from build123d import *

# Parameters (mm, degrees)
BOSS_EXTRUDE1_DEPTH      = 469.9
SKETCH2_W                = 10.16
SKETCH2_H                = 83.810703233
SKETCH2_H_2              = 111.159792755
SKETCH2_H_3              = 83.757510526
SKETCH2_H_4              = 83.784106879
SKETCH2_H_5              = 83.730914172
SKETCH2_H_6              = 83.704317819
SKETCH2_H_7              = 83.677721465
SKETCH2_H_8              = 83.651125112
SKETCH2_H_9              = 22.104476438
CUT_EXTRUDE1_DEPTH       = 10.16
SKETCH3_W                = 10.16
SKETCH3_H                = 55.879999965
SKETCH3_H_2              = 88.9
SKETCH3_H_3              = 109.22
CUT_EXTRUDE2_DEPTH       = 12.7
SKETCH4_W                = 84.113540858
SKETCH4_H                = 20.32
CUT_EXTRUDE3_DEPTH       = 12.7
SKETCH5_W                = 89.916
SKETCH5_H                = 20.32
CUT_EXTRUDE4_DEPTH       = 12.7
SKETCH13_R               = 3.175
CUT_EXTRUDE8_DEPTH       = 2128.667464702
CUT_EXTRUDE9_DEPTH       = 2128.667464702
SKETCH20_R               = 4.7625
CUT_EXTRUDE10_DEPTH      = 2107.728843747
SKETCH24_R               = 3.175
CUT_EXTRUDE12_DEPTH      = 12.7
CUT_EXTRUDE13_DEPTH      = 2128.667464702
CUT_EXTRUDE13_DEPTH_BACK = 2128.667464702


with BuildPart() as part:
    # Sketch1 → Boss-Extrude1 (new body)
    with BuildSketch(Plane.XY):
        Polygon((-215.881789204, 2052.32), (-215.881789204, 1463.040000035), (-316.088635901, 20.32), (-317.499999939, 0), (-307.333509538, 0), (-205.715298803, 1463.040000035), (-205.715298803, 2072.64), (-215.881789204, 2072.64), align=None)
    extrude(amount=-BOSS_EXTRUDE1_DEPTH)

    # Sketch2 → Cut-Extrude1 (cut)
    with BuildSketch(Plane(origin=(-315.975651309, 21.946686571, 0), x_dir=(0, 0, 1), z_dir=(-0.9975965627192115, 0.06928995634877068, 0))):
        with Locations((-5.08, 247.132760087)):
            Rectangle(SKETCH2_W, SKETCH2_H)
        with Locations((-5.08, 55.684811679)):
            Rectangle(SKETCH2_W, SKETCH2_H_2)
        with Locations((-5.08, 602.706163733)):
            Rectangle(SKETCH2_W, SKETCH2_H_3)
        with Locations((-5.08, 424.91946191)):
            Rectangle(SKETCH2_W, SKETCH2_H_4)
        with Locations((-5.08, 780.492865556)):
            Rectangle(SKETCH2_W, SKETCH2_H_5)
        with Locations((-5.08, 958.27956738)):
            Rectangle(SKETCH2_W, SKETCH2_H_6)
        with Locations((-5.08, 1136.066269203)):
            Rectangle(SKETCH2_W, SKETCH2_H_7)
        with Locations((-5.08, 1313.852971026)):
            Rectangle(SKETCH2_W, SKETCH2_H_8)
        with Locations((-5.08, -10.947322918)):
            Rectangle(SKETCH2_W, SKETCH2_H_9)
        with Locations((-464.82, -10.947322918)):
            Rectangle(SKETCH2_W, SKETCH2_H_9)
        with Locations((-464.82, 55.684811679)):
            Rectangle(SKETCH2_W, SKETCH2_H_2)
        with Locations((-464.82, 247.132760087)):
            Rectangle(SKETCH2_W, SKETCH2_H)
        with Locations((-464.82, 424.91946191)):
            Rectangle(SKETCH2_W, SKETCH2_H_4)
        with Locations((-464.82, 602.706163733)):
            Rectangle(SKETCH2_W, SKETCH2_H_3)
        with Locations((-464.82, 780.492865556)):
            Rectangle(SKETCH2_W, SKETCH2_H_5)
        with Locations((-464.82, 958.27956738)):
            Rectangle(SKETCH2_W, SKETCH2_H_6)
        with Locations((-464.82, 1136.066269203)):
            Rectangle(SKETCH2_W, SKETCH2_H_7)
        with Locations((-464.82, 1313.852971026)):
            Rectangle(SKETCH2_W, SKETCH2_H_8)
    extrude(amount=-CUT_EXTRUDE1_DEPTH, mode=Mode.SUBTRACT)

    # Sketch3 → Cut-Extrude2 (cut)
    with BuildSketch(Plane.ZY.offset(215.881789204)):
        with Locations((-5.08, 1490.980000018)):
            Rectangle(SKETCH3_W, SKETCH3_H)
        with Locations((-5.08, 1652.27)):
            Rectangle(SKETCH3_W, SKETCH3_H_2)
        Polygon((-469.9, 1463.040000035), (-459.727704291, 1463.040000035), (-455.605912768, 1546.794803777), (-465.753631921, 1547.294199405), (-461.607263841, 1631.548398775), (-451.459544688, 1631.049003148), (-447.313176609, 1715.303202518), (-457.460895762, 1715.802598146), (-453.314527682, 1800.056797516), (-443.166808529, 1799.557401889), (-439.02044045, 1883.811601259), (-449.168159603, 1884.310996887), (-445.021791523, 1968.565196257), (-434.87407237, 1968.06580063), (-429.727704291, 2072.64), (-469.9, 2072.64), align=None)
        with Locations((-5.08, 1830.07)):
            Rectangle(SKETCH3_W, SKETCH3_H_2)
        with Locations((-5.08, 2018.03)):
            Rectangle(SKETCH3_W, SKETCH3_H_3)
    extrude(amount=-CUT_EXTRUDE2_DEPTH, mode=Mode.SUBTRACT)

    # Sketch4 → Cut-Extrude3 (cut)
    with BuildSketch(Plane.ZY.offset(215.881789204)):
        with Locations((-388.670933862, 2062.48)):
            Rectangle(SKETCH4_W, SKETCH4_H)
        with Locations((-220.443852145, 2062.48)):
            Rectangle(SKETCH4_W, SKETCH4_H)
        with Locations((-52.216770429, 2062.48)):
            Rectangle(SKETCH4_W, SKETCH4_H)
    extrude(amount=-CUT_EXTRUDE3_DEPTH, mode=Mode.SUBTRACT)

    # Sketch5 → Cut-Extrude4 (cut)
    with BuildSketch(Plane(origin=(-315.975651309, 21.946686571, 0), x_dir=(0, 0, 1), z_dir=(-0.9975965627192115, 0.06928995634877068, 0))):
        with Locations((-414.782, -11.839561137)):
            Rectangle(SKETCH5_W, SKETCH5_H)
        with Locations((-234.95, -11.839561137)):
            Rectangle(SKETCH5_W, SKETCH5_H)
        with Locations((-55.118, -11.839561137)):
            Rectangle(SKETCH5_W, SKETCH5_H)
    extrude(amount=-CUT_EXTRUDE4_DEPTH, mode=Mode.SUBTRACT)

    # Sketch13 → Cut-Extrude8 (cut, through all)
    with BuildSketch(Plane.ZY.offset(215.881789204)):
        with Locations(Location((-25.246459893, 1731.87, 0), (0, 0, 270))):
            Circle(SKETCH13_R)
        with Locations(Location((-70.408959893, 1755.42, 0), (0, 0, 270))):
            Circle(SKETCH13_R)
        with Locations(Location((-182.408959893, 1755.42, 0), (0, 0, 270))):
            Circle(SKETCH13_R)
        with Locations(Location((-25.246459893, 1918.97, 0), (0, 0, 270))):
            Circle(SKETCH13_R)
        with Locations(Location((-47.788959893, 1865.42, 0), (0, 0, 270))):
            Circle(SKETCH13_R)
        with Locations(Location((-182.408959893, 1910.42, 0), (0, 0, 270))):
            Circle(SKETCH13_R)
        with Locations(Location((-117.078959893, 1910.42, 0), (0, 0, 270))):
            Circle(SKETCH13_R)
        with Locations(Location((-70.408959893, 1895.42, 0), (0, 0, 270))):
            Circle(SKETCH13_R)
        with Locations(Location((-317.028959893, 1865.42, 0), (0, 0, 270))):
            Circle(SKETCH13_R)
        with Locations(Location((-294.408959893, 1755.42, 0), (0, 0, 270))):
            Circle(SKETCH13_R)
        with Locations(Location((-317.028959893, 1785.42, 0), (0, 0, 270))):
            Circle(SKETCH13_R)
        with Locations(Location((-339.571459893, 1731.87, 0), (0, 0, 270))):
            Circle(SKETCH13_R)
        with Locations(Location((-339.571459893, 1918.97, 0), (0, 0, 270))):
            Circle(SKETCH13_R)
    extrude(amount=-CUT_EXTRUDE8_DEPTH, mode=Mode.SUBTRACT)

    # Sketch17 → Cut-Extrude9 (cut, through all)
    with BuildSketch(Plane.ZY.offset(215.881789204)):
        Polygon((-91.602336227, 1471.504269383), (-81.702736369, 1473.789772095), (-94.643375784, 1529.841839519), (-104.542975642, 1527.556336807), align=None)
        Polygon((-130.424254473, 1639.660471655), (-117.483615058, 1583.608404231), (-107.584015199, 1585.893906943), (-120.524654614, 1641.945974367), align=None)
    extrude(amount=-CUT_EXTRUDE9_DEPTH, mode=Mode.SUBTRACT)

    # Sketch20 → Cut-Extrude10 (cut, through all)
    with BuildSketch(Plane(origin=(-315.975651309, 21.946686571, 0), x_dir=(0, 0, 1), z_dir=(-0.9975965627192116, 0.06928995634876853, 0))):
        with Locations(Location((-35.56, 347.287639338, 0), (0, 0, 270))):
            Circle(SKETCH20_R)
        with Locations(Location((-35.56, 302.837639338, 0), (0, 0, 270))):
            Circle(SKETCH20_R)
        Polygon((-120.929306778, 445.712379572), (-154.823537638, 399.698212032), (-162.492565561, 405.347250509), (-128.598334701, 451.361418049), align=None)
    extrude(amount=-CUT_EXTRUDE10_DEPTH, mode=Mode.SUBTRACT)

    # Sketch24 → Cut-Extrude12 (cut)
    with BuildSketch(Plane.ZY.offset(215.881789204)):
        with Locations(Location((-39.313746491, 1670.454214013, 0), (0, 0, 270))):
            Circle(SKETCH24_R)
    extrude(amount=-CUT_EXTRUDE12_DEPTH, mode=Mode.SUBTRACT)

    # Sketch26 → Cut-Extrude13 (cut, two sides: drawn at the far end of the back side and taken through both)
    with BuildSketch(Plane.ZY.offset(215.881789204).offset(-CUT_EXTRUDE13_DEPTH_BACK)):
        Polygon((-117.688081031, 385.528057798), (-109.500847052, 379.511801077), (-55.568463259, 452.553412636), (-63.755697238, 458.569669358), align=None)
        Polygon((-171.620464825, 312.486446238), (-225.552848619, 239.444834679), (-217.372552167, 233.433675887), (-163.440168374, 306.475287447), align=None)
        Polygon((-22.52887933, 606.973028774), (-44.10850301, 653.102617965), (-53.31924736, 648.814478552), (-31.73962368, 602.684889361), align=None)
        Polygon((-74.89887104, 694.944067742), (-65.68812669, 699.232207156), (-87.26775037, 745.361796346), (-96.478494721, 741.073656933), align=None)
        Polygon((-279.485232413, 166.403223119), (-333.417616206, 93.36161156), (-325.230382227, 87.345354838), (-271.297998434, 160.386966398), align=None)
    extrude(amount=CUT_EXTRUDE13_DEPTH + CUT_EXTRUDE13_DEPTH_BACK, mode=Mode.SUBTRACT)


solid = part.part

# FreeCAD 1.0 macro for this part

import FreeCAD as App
import Part
import Sketcher

V = App.Vector
Q = App.Units.Quantity


def add_polygon(sketch, points):
    """Adds a closed chain of lines whose ends are joined by coincident constraints."""
    first, n = sketch.GeometryCount, len(points)
    for a, b in zip(points, points[1:] + points[:1]):
        sketch.addGeometry(Part.LineSegment(App.Vector(*a, 0), App.Vector(*b, 0)), False)
    for i in range(n):
        sketch.addConstraint(Sketcher.Constraint("Coincident", first + i, 2, first + (i + 1) % n, 1))

doc = App.newDocument("Part")
body = doc.addObject("PartDesign::Body", "Body")

# Sketch on XY plane
sketch1 = body.newObject("Sketcher::SketchObject", "Sketch")
sketch1.AttachmentSupport = (doc.getObject("XY_Plane"), [""])
sketch1.MapMode = "FlatFace"
add_polygon(sketch1, [(-216, 1463), (-316, 20), (-317, 0), (-307, 0), (-206, 1463), (-206, 2073), (-216, 2073)])  # lines 0-6
sketch1.addConstraint(Sketcher.Constraint("Horizontal", 2))
sketch1.addConstraint(Sketcher.Constraint("Vertical", 4))
sketch1.addConstraint(Sketcher.Constraint("Horizontal", 5))
sketch1.addConstraint(Sketcher.Constraint("Vertical", 6))
sketch1.addConstraint(Sketcher.Constraint("PointOnObject", 1, 2, -1))
sketch1.addConstraint(Sketcher.Constraint("Parallel", 0, 1))
sketch1.addConstraint(Sketcher.Constraint("Parallel", 1, 3))
sketch1.addConstraint(Sketcher.Constraint("Horizontal", 3, 2, 6, 2))
sketch1.addConstraint(Sketcher.Constraint("DistanceY", 4, 1, 4, 2, Q("24 in")))
sketch1.addConstraint(Sketcher.Constraint("DistanceY", -1, 1, 0, 2, Q("0.8 in")))
sketch1.addConstraint(Sketcher.Constraint("DistanceX", 1, 2, -1, 1, Q("12.5 in")))
sketch1.addConstraint(Sketcher.Constraint("DistanceY", -1, 1, 3, 2, Q("57.6 in")))
sketch1.addConstraint(Sketcher.Constraint("DistanceX", 2, 1, 2, 2, 10.16649))
sketch1.addConstraint(Sketcher.Constraint("DistanceX", 3, 2, -1, 1, 205.715299))
pad1 = body.newObject("PartDesign::Pad", "Pad")
pad1.Profile = sketch1
pad1.Length = Q("18.5 in")
pad1.Reversed = True

# Sketch on an angled plane
sketch2 = body.newObject("Sketcher::SketchObject", "Sketch001")
sketch2.Placement = App.Placement(V(-315.975651, 21.946687, 0), App.Rotation(V(0, 0, 1), V(0.069289956, 0.997596563, 0), V(-0.997596563, 0.069289956, 0), "ZXY"))
add_polygon(sketch2, [(-10, 289), (-10, 205), (0, 205), (0, 289)])  # lines 0-3
add_polygon(sketch2, [(-10, 111), (-10, -22), (0, -22), (0, 111)])  # lines 4-7
add_polygon(sketch2, [(-10, 645), (-10, 561), (0, 561), (0, 645)])  # lines 8-11
add_polygon(sketch2, [(-10, 467), (-10, 383), (0, 383), (0, 467)])  # lines 12-15
add_polygon(sketch2, [(-10, 822), (-10, 739), (0, 739), (0, 822)])  # lines 16-19
add_polygon(sketch2, [(-10, 1000), (-10, 916), (0, 916), (0, 1000)])  # lines 20-23
add_polygon(sketch2, [(-10, 1178), (-10, 1094), (0, 1094), (0, 1178)])  # lines 24-27
add_polygon(sketch2, [(-10, 1356), (-10, 1272), (0, 1272), (0, 1356)])  # lines 28-31
add_polygon(sketch2, [(-470, -22), (-460, -22), (-460, 111), (-470, 111)])  # lines 32-35
add_polygon(sketch2, [(-470, 289), (-470, 205), (-460, 205), (-460, 289)])  # lines 36-39
add_polygon(sketch2, [(-470, 467), (-470, 383), (-460, 383), (-460, 467)])  # lines 40-43
add_polygon(sketch2, [(-470, 645), (-470, 561), (-460, 561), (-460, 645)])  # lines 44-47
add_polygon(sketch2, [(-470, 822), (-470, 739), (-460, 739), (-460, 822)])  # lines 48-51
add_polygon(sketch2, [(-470, 1000), (-470, 916), (-460, 916), (-460, 1000)])  # lines 52-55
add_polygon(sketch2, [(-470, 1178), (-470, 1094), (-460, 1094), (-460, 1178)])  # lines 56-59
add_polygon(sketch2, [(-470, 1356), (-470, 1272), (-460, 1272), (-460, 1356)])  # lines 60-63
sketch2.addConstraint(Sketcher.Constraint("Vertical", 0))
sketch2.addConstraint(Sketcher.Constraint("Horizontal", 1))
sketch2.addConstraint(Sketcher.Constraint("Vertical", 2))
sketch2.addConstraint(Sketcher.Constraint("Horizontal", 3))
sketch2.addConstraint(Sketcher.Constraint("Vertical", 4))
sketch2.addConstraint(Sketcher.Constraint("Horizontal", 5))
sketch2.addConstraint(Sketcher.Constraint("Vertical", 6))
sketch2.addConstraint(Sketcher.Constraint("Horizontal", 7))
sketch2.addConstraint(Sketcher.Constraint("Vertical", 8))
sketch2.addConstraint(Sketcher.Constraint("Horizontal", 9))
sketch2.addConstraint(Sketcher.Constraint("Vertical", 10))
sketch2.addConstraint(Sketcher.Constraint("Horizontal", 11))
sketch2.addConstraint(Sketcher.Constraint("Vertical", 12))
sketch2.addConstraint(Sketcher.Constraint("Horizontal", 13))
sketch2.addConstraint(Sketcher.Constraint("Vertical", 14))
sketch2.addConstraint(Sketcher.Constraint("Horizontal", 15))
sketch2.addConstraint(Sketcher.Constraint("Vertical", 16))
sketch2.addConstraint(Sketcher.Constraint("Horizontal", 17))
sketch2.addConstraint(Sketcher.Constraint("Vertical", 18))
sketch2.addConstraint(Sketcher.Constraint("Horizontal", 19))
sketch2.addConstraint(Sketcher.Constraint("Vertical", 20))
sketch2.addConstraint(Sketcher.Constraint("Horizontal", 21))
sketch2.addConstraint(Sketcher.Constraint("Vertical", 22))
sketch2.addConstraint(Sketcher.Constraint("Horizontal", 23))
sketch2.addConstraint(Sketcher.Constraint("Vertical", 24))
sketch2.addConstraint(Sketcher.Constraint("Horizontal", 25))
sketch2.addConstraint(Sketcher.Constraint("Vertical", 26))
sketch2.addConstraint(Sketcher.Constraint("Horizontal", 27))
sketch2.addConstraint(Sketcher.Constraint("Vertical", 28))
sketch2.addConstraint(Sketcher.Constraint("Horizontal", 29))
sketch2.addConstraint(Sketcher.Constraint("Vertical", 30))
sketch2.addConstraint(Sketcher.Constraint("Horizontal", 31))
sketch2.addConstraint(Sketcher.Constraint("Horizontal", 32))
sketch2.addConstraint(Sketcher.Constraint("Vertical", 33))
sketch2.addConstraint(Sketcher.Constraint("Horizontal", 34))
sketch2.addConstraint(Sketcher.Constraint("Vertical", 35))
sketch2.addConstraint(Sketcher.Constraint("Vertical", 36))
sketch2.addConstraint(Sketcher.Constraint("Horizontal", 37))
sketch2.addConstraint(Sketcher.Constraint("Vertical", 38))
sketch2.addConstraint(Sketcher.Constraint("Horizontal", 39))
sketch2.addConstraint(Sketcher.Constraint("Vertical", 40))
sketch2.addConstraint(Sketcher.Constraint("Horizontal", 41))
sketch2.addConstraint(Sketcher.Constraint("Vertical", 42))
sketch2.addConstraint(Sketcher.Constraint("Horizontal", 43))
sketch2.addConstraint(Sketcher.Constraint("Vertical", 44))
sketch2.addConstraint(Sketcher.Constraint("Horizontal", 45))
sketch2.addConstraint(Sketcher.Constraint("Vertical", 46))
sketch2.addConstraint(Sketcher.Constraint("Horizontal", 47))
sketch2.addConstraint(Sketcher.Constraint("Vertical", 48))
sketch2.addConstraint(Sketcher.Constraint("Horizontal", 49))
sketch2.addConstraint(Sketcher.Constraint("Vertical", 50))
sketch2.addConstraint(Sketcher.Constraint("Horizontal", 51))
sketch2.addConstraint(Sketcher.Constraint("Vertical", 52))
sketch2.addConstraint(Sketcher.Constraint("Horizontal", 53))
sketch2.addConstraint(Sketcher.Constraint("Vertical", 54))
sketch2.addConstraint(Sketcher.Constraint("Horizontal", 55))
sketch2.addConstraint(Sketcher.Constraint("Vertical", 56))
sketch2.addConstraint(Sketcher.Constraint("Horizontal", 57))
sketch2.addConstraint(Sketcher.Constraint("Vertical", 58))
sketch2.addConstraint(Sketcher.Constraint("Horizontal", 59))
sketch2.addConstraint(Sketcher.Constraint("Vertical", 60))
sketch2.addConstraint(Sketcher.Constraint("Horizontal", 61))
sketch2.addConstraint(Sketcher.Constraint("Vertical", 62))
sketch2.addConstraint(Sketcher.Constraint("Horizontal", 63))
sketch2.addConstraint(Sketcher.Constraint("PointOnObject", 1, 2, -2))
sketch2.addConstraint(Sketcher.Constraint("PointOnObject", 5, 2, -2))
sketch2.addConstraint(Sketcher.Constraint("PointOnObject", 9, 2, -2))
sketch2.addConstraint(Sketcher.Constraint("PointOnObject", 13, 2, -2))
sketch2.addConstraint(Sketcher.Constraint("PointOnObject", 17, 2, -2))
sketch2.addConstraint(Sketcher.Constraint("PointOnObject", 21, 2, -2))
sketch2.addConstraint(Sketcher.Constraint("PointOnObject", 25, 2, -2))
sketch2.addConstraint(Sketcher.Constraint("PointOnObject", 29, 2, -2))
sketch2.addConstraint(Sketcher.Constraint("Horizontal", 5, 2, 32, 2))
sketch2.addConstraint(Sketcher.Constraint("Horizontal", 7, 2, 33, 2))
sketch2.addConstraint(Sketcher.Constraint("Horizontal", 1, 2, 36, 2))
sketch2.addConstraint(Sketcher.Constraint("Horizontal", 3, 2, 38, 2))
sketch2.addConstraint(Sketcher.Constraint("Horizontal", 13, 2, 40, 2))
sketch2.addConstraint(Sketcher.Constraint("Horizontal", 15, 2, 42, 2))
sketch2.addConstraint(Sketcher.Constraint("Horizontal", 9, 2, 44, 2))
sketch2.addConstraint(Sketcher.Constraint("Horizontal", 11, 2, 46, 2))
sketch2.addConstraint(Sketcher.Constraint("Horizontal", 17, 2, 48, 2))
sketch2.addConstraint(Sketcher.Constraint("Horizontal", 19, 2, 50, 2))
sketch2.addConstraint(Sketcher.Constraint("Horizontal", 21, 2, 52, 2))
sketch2.addConstraint(Sketcher.Constraint("Horizontal", 23, 2, 54, 2))
sketch2.addConstraint(Sketcher.Constraint("Horizontal", 25, 2, 56, 2))
sketch2.addConstraint(Sketcher.Constraint("Horizontal", 27, 2, 58, 2))
sketch2.addConstraint(Sketcher.Constraint("Horizontal", 29, 2, 60, 2))
sketch2.addConstraint(Sketcher.Constraint("Horizontal", 31, 2, 62, 2))
sketch2.addConstraint(Sketcher.Constraint("Vertical", 3, 2, 4, 2))
sketch2.addConstraint(Sketcher.Constraint("Vertical", 7, 2, 8, 2))
sketch2.addConstraint(Sketcher.Constraint("Vertical", 11, 2, 12, 2))
sketch2.addConstraint(Sketcher.Constraint("Vertical", 15, 2, 16, 2))
sketch2.addConstraint(Sketcher.Constraint("Vertical", 19, 2, 20, 2))
sketch2.addConstraint(Sketcher.Constraint("Vertical", 23, 2, 24, 2))
sketch2.addConstraint(Sketcher.Constraint("Vertical", 27, 2, 28, 2))
sketch2.addConstraint(Sketcher.Constraint("Vertical", 35, 2, 36, 2))
sketch2.addConstraint(Sketcher.Constraint("Vertical", 33, 2, 37, 2))
sketch2.addConstraint(Sketcher.Constraint("Vertical", 39, 2, 40, 2))
sketch2.addConstraint(Sketcher.Constraint("Vertical", 38, 2, 41, 2))
sketch2.addConstraint(Sketcher.Constraint("Vertical", 43, 2, 44, 2))
sketch2.addConstraint(Sketcher.Constraint("Vertical", 42, 2, 45, 2))
sketch2.addConstraint(Sketcher.Constraint("Vertical", 47, 2, 48, 2))
sketch2.addConstraint(Sketcher.Constraint("Vertical", 46, 2, 49, 2))
sketch2.addConstraint(Sketcher.Constraint("Vertical", 51, 2, 52, 2))
sketch2.addConstraint(Sketcher.Constraint("Vertical", 50, 2, 53, 2))
sketch2.addConstraint(Sketcher.Constraint("Vertical", 55, 2, 56, 2))
sketch2.addConstraint(Sketcher.Constraint("Vertical", 54, 2, 57, 2))
sketch2.addConstraint(Sketcher.Constraint("Vertical", 59, 2, 60, 2))
sketch2.addConstraint(Sketcher.Constraint("Vertical", 58, 2, 61, 2))
sketch2.addConstraint(Sketcher.Constraint("Equal", 31, 32))
sketch2.addConstraint(Sketcher.Constraint("DistanceX", 1, 1, 1, 2, Q("0.4 in")))
sketch2.addConstraint(Sketcher.Constraint("DistanceX", 32, 2, -1, 1, Q("18.1 in")))
sketch2.addConstraint(Sketcher.Constraint("DistanceY", 4, 2, 4, 1, 133.264269))
sketch2.addConstraint(Sketcher.Constraint("DistanceY", 8, 2, 8, 1, 83.757511))
sketch2.addConstraint(Sketcher.Constraint("DistanceY", 24, 2, 24, 1, 83.677722))
sketch2.addConstraint(Sketcher.Constraint("DistanceY", 0, 2, 0, 1, 83.810703))
sketch2.addConstraint(Sketcher.Constraint("DistanceY", 12, 2, 12, 1, 83.784107))
sketch2.addConstraint(Sketcher.Constraint("DistanceY", 16, 2, 16, 1, 83.730914))
sketch2.addConstraint(Sketcher.Constraint("DistanceY", 20, 2, 20, 1, 83.704318))
sketch2.addConstraint(Sketcher.Constraint("DistanceY", 28, 2, 28, 1, 83.651125))
sketch2.addConstraint(Sketcher.Constraint("DistanceY", -1, 1, 0, 2, 205.227409))
sketch2.addConstraint(Sketcher.Constraint("DistanceY", 4, 2, -1, 1, 21.999561))
sketch2.addConstraint(Sketcher.Constraint("DistanceY", -1, 1, 8, 2, 560.827409))
sketch2.addConstraint(Sketcher.Constraint("DistanceY", -1, 1, 12, 2, 383.027409))
sketch2.addConstraint(Sketcher.Constraint("DistanceY", -1, 1, 16, 2, 738.627409))
sketch2.addConstraint(Sketcher.Constraint("DistanceY", -1, 1, 20, 2, 916.427409))
sketch2.addConstraint(Sketcher.Constraint("DistanceY", -1, 1, 24, 2, 1094.227409))
sketch2.addConstraint(Sketcher.Constraint("DistanceY", -1, 1, 28, 2, 1272.027409))
pocket1 = body.newObject("PartDesign::Pocket", "Pocket")
pocket1.Profile = sketch2
pocket1.Length = Q("0.4 in")

# Sketch on YZ plane
sketch3 = body.newObject("Sketcher::SketchObject", "Sketch002")
sketch3.AttachmentSupport = (doc.getObject("YZ_Plane"), [""])
sketch3.MapMode = "FlatFace"
sketch3.AttachmentOffset = App.Placement(V(0, 0, -215.881789), App.Rotation())
add_polygon(sketch3, [(1518.92, -10.16), (1463.04, -10.16), (1463.04, 0), (1518.92, 0)])  # lines 0-3
add_polygon(sketch3, [(1696.72, -10.16), (1607.82, -10.16), (1607.82, 0), (1696.72, 0)])  # lines 4-7
add_polygon(sketch3, [(1463.04, -469.9), (1463.04, -459.727704), (1546.794804, -455.605913), (1547.294199, -465.753632), (1631.548399, -461.607264), (1631.049003, -451.459545), (1715.303203, -447.313177), (1715.802598, -457.460896), (1800.056798, -453.314528), (1799.557402, -443.166809), (1883.811601, -439.02044), (1884.310997, -449.16816), (1968.565196, -445.021792), (1968.065801, -434.874072), (2072.64, -429.727704), (2072.64, -469.9)])  # lines 8-23
add_polygon(sketch3, [(1874.52, -10.16), (1785.62, -10.16), (1785.62, 0), (1874.52, 0)])  # lines 24-27
add_polygon(sketch3, [(2072.64, -10.16), (1963.42, -10.16), (1963.42, 0), (2072.64, 0)])  # lines 28-31
sketch3.addConstraint(Sketcher.Constraint("Horizontal", 0))
sketch3.addConstraint(Sketcher.Constraint("Vertical", 1))
sketch3.addConstraint(Sketcher.Constraint("Horizontal", 2))
sketch3.addConstraint(Sketcher.Constraint("Vertical", 3))
sketch3.addConstraint(Sketcher.Constraint("Horizontal", 4))
sketch3.addConstraint(Sketcher.Constraint("Vertical", 5))
sketch3.addConstraint(Sketcher.Constraint("Horizontal", 6))
sketch3.addConstraint(Sketcher.Constraint("Vertical", 7))
sketch3.addConstraint(Sketcher.Constraint("Vertical", 8))
sketch3.addConstraint(Sketcher.Constraint("Vertical", 22))
sketch3.addConstraint(Sketcher.Constraint("Horizontal", 23))
sketch3.addConstraint(Sketcher.Constraint("Horizontal", 24))
sketch3.addConstraint(Sketcher.Constraint("Vertical", 25))
sketch3.addConstraint(Sketcher.Constraint("Horizontal", 26))
sketch3.addConstraint(Sketcher.Constraint("Vertical", 27))
sketch3.addConstraint(Sketcher.Constraint("Horizontal", 28))
sketch3.addConstraint(Sketcher.Constraint("Vertical", 29))
sketch3.addConstraint(Sketcher.Constraint("Horizontal", 30))
sketch3.addConstraint(Sketcher.Constraint("Vertical", 31))
sketch3.addConstraint(Sketcher.Constraint("PointOnObject", 1, 2, -1))
sketch3.addConstraint(Sketcher.Constraint("PointOnObject", 5, 2, -1))
sketch3.addConstraint(Sketcher.Constraint("PointOnObject", 25, 2, -1))
sketch3.addConstraint(Sketcher.Constraint("PointOnObject", 29, 2, -1))
sketch3.addConstraint(Sketcher.Constraint("DistanceX", 23, 2, 23, 1, Q("24 in")))
sketch3.addConstraint(Sketcher.Constraint("DistanceX", 0, 2, 0, 1, Q("2.2 in")))
sketch3.addConstraint(Sketcher.Constraint("DistanceX", 4, 2, 4, 1, Q("3.5 in")))
sketch3.addConstraint(Sketcher.Constraint("DistanceX", 24, 2, 24, 1, Q("3.5 in")))
sketch3.addConstraint(Sketcher.Constraint("DistanceX", 28, 2, 28, 1, Q("4.3 in")))
sketch3.addConstraint(Sketcher.Constraint("DistanceY", 1, 1, 1, 2, Q("0.4 in")))
sketch3.addConstraint(Sketcher.Constraint("DistanceY", 5, 1, 5, 2, Q("0.4 in")))
sketch3.addConstraint(Sketcher.Constraint("DistanceY", 25, 1, 25, 2, Q("0.4 in")))
sketch3.addConstraint(Sketcher.Constraint("DistanceY", 29, 1, 29, 2, Q("0.4 in")))
sketch3.addConstraint(Sketcher.Constraint("DistanceX", 2, 2, 6, 2, Q("7 in")))
sketch3.addConstraint(Sketcher.Constraint("DistanceX", 4, 2, 24, 2, Q("7 in")))
sketch3.addConstraint(Sketcher.Constraint("DistanceX", 24, 2, 28, 2, Q("7 in")))
sketch3.addConstraint(Sketcher.Constraint("Distance", 10, Q("0.4 in")))
sketch3.addConstraint(Sketcher.Constraint("Distance", 12, Q("0.4 in")))
sketch3.addConstraint(Sketcher.Constraint("Distance", 14, Q("0.4 in")))
sketch3.addConstraint(Sketcher.Constraint("Distance", 16, Q("0.4 in")))
sketch3.addConstraint(Sketcher.Constraint("Distance", 18, Q("0.4 in")))
sketch3.addConstraint(Sketcher.Constraint("Distance", 20, Q("0.4 in")))
sketch3.addConstraint(Sketcher.Constraint("DistanceX", -1, 1, 0, 2, Q("57.6 in")))
sketch3.addConstraint(Sketcher.Constraint("DistanceX", -1, 1, 8, 2, Q("57.6 in")))
sketch3.addConstraint(Sketcher.Constraint("DistanceY", 22, 2, -1, 1, Q("18.5 in")))
sketch3.addConstraint(Sketcher.Constraint("DistanceX", -1, 1, 10, 2, 1547.294199))
sketch3.addConstraint(Sketcher.Constraint("DistanceX", -1, 1, 11, 2, 1631.548399))
sketch3.addConstraint(Sketcher.Constraint("DistanceX", -1, 1, 14, 2, 1715.802598))
sketch3.addConstraint(Sketcher.Constraint("DistanceX", -1, 1, 16, 2, 1799.557402))
sketch3.addConstraint(Sketcher.Constraint("DistanceX", -1, 1, 17, 2, 1883.811601))
sketch3.addConstraint(Sketcher.Constraint("DistanceX", -1, 1, 20, 2, 1968.065801))
sketch3.addConstraint(Sketcher.Constraint("DistanceX", 9, 2, 12, 2, 84.254199))
sketch3.addConstraint(Sketcher.Constraint("DistanceX", 12, 2, 13, 2, 84.254199))
sketch3.addConstraint(Sketcher.Constraint("DistanceX", 14, 2, 15, 2, 84.254199))
sketch3.addConstraint(Sketcher.Constraint("DistanceX", 13, 2, 16, 2, 84.254199))
sketch3.addConstraint(Sketcher.Constraint("DistanceX", 15, 2, 18, 2, 84.254199))
sketch3.addConstraint(Sketcher.Constraint("DistanceX", 18, 2, 19, 2, 84.254199))
sketch3.addConstraint(Sketcher.Constraint("DistanceY", 8, 1, 8, 2, 10.172296))
sketch3.addConstraint(Sketcher.Constraint("DistanceY", 22, 2, 22, 1, 40.172296))
sketch3.addConstraint(Sketcher.Constraint("DistanceY", 10, 2, -1, 1, 465.753632))
sketch3.addConstraint(Sketcher.Constraint("DistanceY", 16, 2, -1, 1, 443.166809))
sketch3.addConstraint(Sketcher.Constraint("DistanceY", 17, 2, -1, 1, 439.02044))
sketch3.addConstraint(Sketcher.Constraint("DistanceY", 19, 2, -1, 1, 445.021792))
sketch3.addConstraint(Sketcher.Constraint("DistanceY", 10, 2, 11, 2, 4.146368))
sketch3.addConstraint(Sketcher.Constraint("DistanceY", 12, 2, 13, 2, 4.146368))
pocket2 = body.newObject("PartDesign::Pocket", "Pocket001")
pocket2.Profile = sketch3
pocket2.Length = Q("0.5 in")
pocket2.Reversed = True

# Sketch on YZ plane
sketch4 = body.newObject("Sketcher::SketchObject", "Sketch003")
sketch4.AttachmentSupport = (doc.getObject("YZ_Plane"), [""])
sketch4.MapMode = "FlatFace"
sketch4.AttachmentOffset = App.Placement(V(0, 0, -215.881789), App.Rotation())
add_polygon(sketch4, [(2073, -431), (2052, -431), (2052, -347), (2073, -347)])  # lines 0-3
add_polygon(sketch4, [(2073, -263), (2052, -263), (2052, -178), (2073, -178)])  # lines 4-7
add_polygon(sketch4, [(2073, -94), (2052, -94), (2052, -10), (2073, -10)])  # lines 8-11
sketch4.addConstraint(Sketcher.Constraint("Horizontal", 0))
sketch4.addConstraint(Sketcher.Constraint("Vertical", 1))
sketch4.addConstraint(Sketcher.Constraint("Horizontal", 2))
sketch4.addConstraint(Sketcher.Constraint("Vertical", 3))
sketch4.addConstraint(Sketcher.Constraint("Horizontal", 4))
sketch4.addConstraint(Sketcher.Constraint("Vertical", 5))
sketch4.addConstraint(Sketcher.Constraint("Horizontal", 6))
sketch4.addConstraint(Sketcher.Constraint("Vertical", 7))
sketch4.addConstraint(Sketcher.Constraint("Horizontal", 8))
sketch4.addConstraint(Sketcher.Constraint("Vertical", 9))
sketch4.addConstraint(Sketcher.Constraint("Horizontal", 10))
sketch4.addConstraint(Sketcher.Constraint("Vertical", 11))
sketch4.addConstraint(Sketcher.Constraint("Vertical", 1, 2, 4, 2))
sketch4.addConstraint(Sketcher.Constraint("Vertical", 3, 2, 6, 2))
sketch4.addConstraint(Sketcher.Constraint("Vertical", 5, 2, 8, 2))
sketch4.addConstraint(Sketcher.Constraint("Vertical", 7, 2, 10, 2))
sketch4.addConstraint(Sketcher.Constraint("Equal", 3, 5))
sketch4.addConstraint(Sketcher.Constraint("Equal", 7, 9))
sketch4.addConstraint(Sketcher.Constraint("DistanceX", 0, 2, 0, 1, Q("0.8 in")))
sketch4.addConstraint(Sketcher.Constraint("DistanceX", -1, 1, 0, 2, Q("80.8 in")))
sketch4.addConstraint(Sketcher.Constraint("DistanceY", 9, 2, -1, 1, Q("0.4 in")))
sketch4.addConstraint(Sketcher.Constraint("DistanceY", 1, 1, 1, 2, 84.113541))
sketch4.addConstraint(Sketcher.Constraint("DistanceY", 5, 2, -1, 1, 178.387082))
sketch4.addConstraint(Sketcher.Constraint("DistanceY", 1, 2, 4, 2, 84.113541))
pocket3 = body.newObject("PartDesign::Pocket", "Pocket002")
pocket3.Profile = sketch4
pocket3.Length = Q("0.5 in")
pocket3.Reversed = True

# Sketch on an angled plane
sketch5 = body.newObject("Sketcher::SketchObject", "Sketch004")
sketch5.Placement = App.Placement(V(-315.975651, 21.946687, 0), App.Rotation(V(0, 0, 1), V(0.069289956, 0.997596563, 0), V(-0.997596563, 0.069289956, 0), "ZXY"))
add_polygon(sketch5, [(-460, -2), (-460, -22), (-370, -22), (-370, -2)])  # lines 0-3
add_polygon(sketch5, [(-280, -2), (-280, -22), (-190, -22), (-190, -2)])  # lines 4-7
add_polygon(sketch5, [(-100, -2), (-100, -22), (-10, -22), (-10, -2)])  # lines 8-11
sketch5.addConstraint(Sketcher.Constraint("Vertical", 0))
sketch5.addConstraint(Sketcher.Constraint("Horizontal", 1))
sketch5.addConstraint(Sketcher.Constraint("Vertical", 2))
sketch5.addConstraint(Sketcher.Constraint("Horizontal", 3))
sketch5.addConstraint(Sketcher.Constraint("Vertical", 4))
sketch5.addConstraint(Sketcher.Constraint("Horizontal", 5))
sketch5.addConstraint(Sketcher.Constraint("Vertical", 6))
sketch5.addConstraint(Sketcher.Constraint("Horizontal", 7))
sketch5.addConstraint(Sketcher.Constraint("Vertical", 8))
sketch5.addConstraint(Sketcher.Constraint("Horizontal", 9))
sketch5.addConstraint(Sketcher.Constraint("Vertical", 10))
sketch5.addConstraint(Sketcher.Constraint("Horizontal", 11))
sketch5.addConstraint(Sketcher.Constraint("Horizontal", 1, 2, 4, 2))
sketch5.addConstraint(Sketcher.Constraint("Horizontal", 3, 2, 6, 2))
sketch5.addConstraint(Sketcher.Constraint("Horizontal", 5, 2, 8, 2))
sketch5.addConstraint(Sketcher.Constraint("Horizontal", 7, 2, 10, 2))
sketch5.addConstraint(Sketcher.Constraint("Equal", 3, 5))
sketch5.addConstraint(Sketcher.Constraint("Equal", 7, 9))
sketch5.addConstraint(Sketcher.Constraint("DistanceY", 0, 2, 0, 1, Q("0.8 in")))
sketch5.addConstraint(Sketcher.Constraint("DistanceX", 1, 1, 1, 2, Q("3.54 in")))
sketch5.addConstraint(Sketcher.Constraint("DistanceX", 0, 2, -1, 1, Q("18.1 in")))
sketch5.addConstraint(Sketcher.Constraint("DistanceX", 9, 2, -1, 1, Q("0.4 in")))
sketch5.addConstraint(Sketcher.Constraint("DistanceX", 4, 2, -1, 1, Q("11.02 in")))
sketch5.addConstraint(Sketcher.Constraint("DistanceY", 0, 2, -1, 1, 21.999561))
pocket4 = body.newObject("PartDesign::Pocket", "Pocket003")
pocket4.Profile = sketch5
pocket4.Length = Q("0.5 in")

# Sketch on YZ plane
sketch6 = body.newObject("Sketcher::SketchObject", "Sketch005")
sketch6.AttachmentSupport = (doc.getObject("YZ_Plane"), [""])
sketch6.MapMode = "FlatFace"
sketch6.AttachmentOffset = App.Placement(V(0, 0, -215.881789), App.Rotation())
sketch6.addGeometry(Part.Circle(V(1731.9, -25.2, 0), V(0, 0, 1), 3.2), False)
sketch6.addGeometry(Part.Circle(V(1755.4, -70.4, 0), V(0, 0, 1), 3.2), False)
sketch6.addGeometry(Part.Circle(V(1755.4, -182.4, 0), V(0, 0, 1), 3.2), False)
sketch6.addGeometry(Part.Circle(V(1919, -25.2, 0), V(0, 0, 1), 3.2), False)
sketch6.addGeometry(Part.Circle(V(1865.4, -47.8, 0), V(0, 0, 1), 3.2), False)
sketch6.addGeometry(Part.Circle(V(1910.4, -182.4, 0), V(0, 0, 1), 3.2), False)
sketch6.addGeometry(Part.Circle(V(1910.4, -117.1, 0), V(0, 0, 1), 3.2), False)
sketch6.addGeometry(Part.Circle(V(1895.4, -70.4, 0), V(0, 0, 1), 3.2), False)
sketch6.addGeometry(Part.Circle(V(1865.4, -317, 0), V(0, 0, 1), 3.2), False)
sketch6.addGeometry(Part.Circle(V(1755.4, -294.4, 0), V(0, 0, 1), 3.2), False)
sketch6.addGeometry(Part.Circle(V(1785.4, -317, 0), V(0, 0, 1), 3.2), False)
sketch6.addGeometry(Part.Circle(V(1731.9, -339.6, 0), V(0, 0, 1), 3.2), False)
sketch6.addGeometry(Part.Circle(V(1919, -339.6, 0), V(0, 0, 1), 3.2), False)
sketch6.addConstraint(Sketcher.Constraint("Equal", 0, 1))
sketch6.addConstraint(Sketcher.Constraint("Equal", 1, 2))
sketch6.addConstraint(Sketcher.Constraint("Equal", 2, 3))
sketch6.addConstraint(Sketcher.Constraint("Equal", 3, 4))
sketch6.addConstraint(Sketcher.Constraint("Equal", 4, 5))
sketch6.addConstraint(Sketcher.Constraint("Equal", 5, 6))
sketch6.addConstraint(Sketcher.Constraint("Equal", 6, 7))
sketch6.addConstraint(Sketcher.Constraint("Equal", 7, 8))
sketch6.addConstraint(Sketcher.Constraint("Equal", 8, 9))
sketch6.addConstraint(Sketcher.Constraint("Equal", 9, 10))
sketch6.addConstraint(Sketcher.Constraint("Equal", 10, 11))
sketch6.addConstraint(Sketcher.Constraint("Equal", 11, 12))
sketch6.addConstraint(Sketcher.Constraint("Horizontal", 0, 3, 3, 3))
sketch6.addConstraint(Sketcher.Constraint("Horizontal", 2, 3, 5, 3))
sketch6.addConstraint(Sketcher.Constraint("Horizontal", 1, 3, 7, 3))
sketch6.addConstraint(Sketcher.Constraint("Horizontal", 8, 3, 10, 3))
sketch6.addConstraint(Sketcher.Constraint("Horizontal", 11, 3, 12, 3))
sketch6.addConstraint(Sketcher.Constraint("Vertical", 1, 3, 2, 3))
sketch6.addConstraint(Sketcher.Constraint("Vertical", 5, 3, 6, 3))
sketch6.addConstraint(Sketcher.Constraint("Vertical", 4, 3, 8, 3))
sketch6.addConstraint(Sketcher.Constraint("Vertical", 2, 3, 9, 3))
sketch6.addConstraint(Sketcher.Constraint("Vertical", 0, 3, 11, 3))
sketch6.addConstraint(Sketcher.Constraint("Vertical", 3, 3, 12, 3))
sketch6.addConstraint(Sketcher.Constraint("Diameter", 0, Q("0.25 in")))
sketch6.addConstraint(Sketcher.Constraint("DistanceY", 2, 3, 4, 3, Q("5.3 in")))
sketch6.addConstraint(Sketcher.Constraint("DistanceY", 8, 3, 5, 3, Q("5.3 in")))
sketch6.addConstraint(Sketcher.Constraint("DistanceX", -1, 1, 3, 3, Q("75.55 in")))
sketch6.addConstraint(Sketcher.Constraint("DistanceY", 2, 3, 0, 3, Q("6.1875 in")))
sketch6.addConstraint(Sketcher.Constraint("DistanceY", 11, 3, 2, 3, Q("6.1875 in")))
sketch6.addConstraint(Sketcher.Constraint("DistanceX", -1, 1, 0, 3, 1731.87))
sketch6.addConstraint(Sketcher.Constraint("DistanceX", -1, 1, 1, 3, 1755.42))
sketch6.addConstraint(Sketcher.Constraint("DistanceX", -1, 1, 4, 3, 1865.42))
sketch6.addConstraint(Sketcher.Constraint("DistanceX", -1, 1, 5, 3, 1910.42))
sketch6.addConstraint(Sketcher.Constraint("DistanceX", -1, 1, 7, 3, 1895.42))
sketch6.addConstraint(Sketcher.Constraint("DistanceX", -1, 1, 10, 3, 1785.42))
sketch6.addConstraint(Sketcher.Constraint("DistanceY", 1, 3, 0, 3, 45.1625))
sketch6.addConstraint(Sketcher.Constraint("DistanceY", 5, 3, 6, 3, 65.33))
sketch6.addConstraint(Sketcher.Constraint("DistanceY", 9, 3, 2, 3, 112.0))
sketch6.addConstraint(Sketcher.Constraint("DistanceY", 0, 3, -1, 1, 25.24646))
pocket5 = body.newObject("PartDesign::Pocket", "Pocket004")
pocket5.Profile = sketch6
pocket5.Type = "ThroughAll"
pocket5.Reversed = True

# Sketch on YZ plane
sketch7 = body.newObject("Sketcher::SketchObject", "Sketch006")
sketch7.AttachmentSupport = (doc.getObject("YZ_Plane"), [""])
sketch7.MapMode = "FlatFace"
sketch7.AttachmentOffset = App.Placement(V(0, 0, -215.881789), App.Rotation())
add_polygon(sketch7, [(1472, -92), (1474, -82), (1530, -95), (1528, -105)])  # lines 0-3
add_polygon(sketch7, [(1640, -130), (1584, -117), (1586, -108), (1642, -121)])  # lines 4-7
sketch7.addConstraint(Sketcher.Constraint("Perpendicular", 0, 1))
sketch7.addConstraint(Sketcher.Constraint("Perpendicular", 1, 2))
sketch7.addConstraint(Sketcher.Constraint("Perpendicular", 2, 3))
sketch7.addConstraint(Sketcher.Constraint("Parallel", 3, 4))
sketch7.addConstraint(Sketcher.Constraint("Perpendicular", 4, 5))
sketch7.addConstraint(Sketcher.Constraint("Perpendicular", 5, 6))
sketch7.addConstraint(Sketcher.Constraint("Perpendicular", 6, 7))
sketch7.addConstraint(Sketcher.Constraint("Equal", 3, 4))
sketch7.addConstraint(Sketcher.Constraint("Equal", 2, 5))
sketch7.addConstraint(Sketcher.Constraint("Angle", 0, Q("77 deg")))
sketch7.addConstraint(Sketcher.Constraint("Distance", 0, Q("0.4 in")))
sketch7.addConstraint(Sketcher.Constraint("DistanceY", 5, 2, 3, 2, Q("0.6292 in")))
sketch7.addConstraint(Sketcher.Constraint("DistanceX", -1, 1, 1, 2, 1529.84184))
sketch7.addConstraint(Sketcher.Constraint("DistanceX", -1, 1, 3, 2, 1471.504269))
sketch7.addConstraint(Sketcher.Constraint("DistanceX", -1, 1, 7, 2, 1639.660472))
sketch7.addConstraint(Sketcher.Constraint("DistanceY", 0, 2, -1, 1, 81.702736))
pocket6 = body.newObject("PartDesign::Pocket", "Pocket005")
pocket6.Profile = sketch7
pocket6.Type = "ThroughAll"
pocket6.Reversed = True

# Sketch on an angled plane
sketch8 = body.newObject("Sketcher::SketchObject", "Sketch007")
sketch8.Placement = App.Placement(V(-315.975651, 21.946687, 0), App.Rotation(V(0, 0, 1), V(0.069289956, 0.997596563, 0), V(-0.997596563, 0.069289956, 0), "ZXY"))
sketch8.addGeometry(Part.Circle(V(-35.6, 347.3, 0), V(0, 0, 1), 4.8), False)  # 0
sketch8.addGeometry(Part.Circle(V(-35.6, 302.8, 0), V(0, 0, 1), 4.8), False)  # 1
add_polygon(sketch8, [(-154.8, 399.7), (-120.9, 445.7), (-128.6, 451.4), (-162.5, 405.3)])  # lines 2-5
sketch8.addConstraint(Sketcher.Constraint("Equal", 0, 1))
sketch8.addConstraint(Sketcher.Constraint("Perpendicular", 2, 3))
sketch8.addConstraint(Sketcher.Constraint("Perpendicular", 3, 4))
sketch8.addConstraint(Sketcher.Constraint("Perpendicular", 4, 5))
sketch8.addConstraint(Sketcher.Constraint("Vertical", 0, 3, 1, 3))
sketch8.addConstraint(Sketcher.Constraint("Diameter", 0, Q("0.375 in")))
sketch8.addConstraint(Sketcher.Constraint("DistanceX", 0, 3, -1, 1, Q("1.4 in")))
sketch8.addConstraint(Sketcher.Constraint("Distance", 2, Q("2.25 in")))
sketch8.addConstraint(Sketcher.Constraint("DistanceY", 1, 3, 0, 3, Q("1.75 in")))
sketch8.addConstraint(Sketcher.Constraint("Distance", 3, Q("0.375 in")))
sketch8.addConstraint(Sketcher.Constraint("DistanceY", -1, 1, 0, 3, 347.28764))
sketch8.addConstraint(Sketcher.Constraint("DistanceY", -1, 1, 2, 2, 445.71238))
sketch8.addConstraint(Sketcher.Constraint("DistanceY", -1, 1, 3, 2, 451.361418))
sketch8.addConstraint(Sketcher.Constraint("DistanceX", 2, 2, -1, 1, 120.929307))
pocket7 = body.newObject("PartDesign::Pocket", "Pocket006")
pocket7.Profile = sketch8
pocket7.Type = "ThroughAll"

# Sketch on YZ plane
sketch9 = body.newObject("Sketcher::SketchObject", "Sketch008")
sketch9.AttachmentSupport = (doc.getObject("YZ_Plane"), [""])
sketch9.MapMode = "FlatFace"
sketch9.AttachmentOffset = App.Placement(V(0, 0, -215.881789), App.Rotation())
sketch9.addGeometry(Part.Circle(V(1670.5, -39.3, 0), V(0, 0, 1), 3.2), False)
sketch9.addConstraint(Sketcher.Constraint("Diameter", 0, Q("0.25 in")))
sketch9.addConstraint(Sketcher.Constraint("DistanceX", -1, 1, 0, 3, 1670.454214))
sketch9.addConstraint(Sketcher.Constraint("DistanceY", 0, 3, -1, 1, 39.313746))
pocket8 = body.newObject("PartDesign::Pocket", "Pocket007")
pocket8.Profile = sketch9
pocket8.Length = Q("0.5 in")
pocket8.Reversed = True

# Sketch on YZ plane
sketch10 = body.newObject("Sketcher::SketchObject", "Sketch009")
sketch10.AttachmentSupport = (doc.getObject("YZ_Plane"), [""])
sketch10.MapMode = "FlatFace"
sketch10.AttachmentOffset = App.Placement(V(0, 0, -215.881789), App.Rotation())
add_polygon(sketch10, [(386, -118), (380, -110), (453, -56), (459, -64)])  # lines 0-3
add_polygon(sketch10, [(312, -172), (239, -226), (233, -217), (306, -163)])  # lines 4-7
add_polygon(sketch10, [(607, -23), (653, -44), (649, -53), (603, -32)])  # lines 8-11
add_polygon(sketch10, [(695, -75), (699, -66), (745, -87), (741, -96)])  # lines 12-15
add_polygon(sketch10, [(166, -279), (93, -333), (87, -325), (160, -271)])  # lines 16-19
sketch10.addConstraint(Sketcher.Constraint("Parallel", 0, 2))
sketch10.addConstraint(Sketcher.Constraint("Parallel", 1, 3))
sketch10.addConstraint(Sketcher.Constraint("Parallel", 3, 4))
sketch10.addConstraint(Sketcher.Constraint("Parallel", 2, 5))
sketch10.addConstraint(Sketcher.Constraint("Parallel", 4, 6))
sketch10.addConstraint(Sketcher.Constraint("Parallel", 5, 7))
sketch10.addConstraint(Sketcher.Constraint("Parallel", 8, 10))
sketch10.addConstraint(Sketcher.Constraint("Parallel", 9, 11))
sketch10.addConstraint(Sketcher.Constraint("Parallel", 11, 12))
sketch10.addConstraint(Sketcher.Constraint("Parallel", 10, 13))
sketch10.addConstraint(Sketcher.Constraint("Parallel", 12, 14))
sketch10.addConstraint(Sketcher.Constraint("Parallel", 13, 15))
sketch10.addConstraint(Sketcher.Constraint("Parallel", 6, 16))
sketch10.addConstraint(Sketcher.Constraint("Parallel", 7, 17))
sketch10.addConstraint(Sketcher.Constraint("Parallel", 16, 18))
sketch10.addConstraint(Sketcher.Constraint("Parallel", 17, 19))
sketch10.addConstraint(Sketcher.Constraint("Equal", 3, 4))
sketch10.addConstraint(Sketcher.Constraint("Equal", 11, 12))
sketch10.addConstraint(Sketcher.Constraint("Equal", 10, 13))
sketch10.addConstraint(Sketcher.Constraint("Equal", 6, 16))
sketch10.addConstraint(Sketcher.Constraint("Equal", 2, 17))
sketch10.addConstraint(Sketcher.Constraint("DistanceX", -1, 1, 0, 2, 379.511801))
sketch10.addConstraint(Sketcher.Constraint("DistanceY", 18, 2, -1, 1, 271.297998))
sketch10.addConstraint(Sketcher.Constraint("DistanceY", 4, 2, 0, 2, 116.052002))
sketch10.addConstraint(Sketcher.Constraint("DistanceY", 0, 2, 9, 2, 56.1816))
sketch10.addConstraint(Sketcher.Constraint("Distance", 1, 90.795259))
sketch10.addConstraint(Sketcher.Constraint("DistanceX", -1, 1, 2, 2, 458.569669))
sketch10.addConstraint(Sketcher.Constraint("DistanceY", 3, 2, -1, 1, 117.688081))
sketch10.addConstraint(Sketcher.Constraint("DistanceY", 4, 2, -1, 1, 225.552849))
sketch10.addConstraint(Sketcher.Constraint("DistanceY", 6, 2, -1, 1, 163.440168))
sketch10.addConstraint(Sketcher.Constraint("DistanceX", -1, 1, 9, 2, 648.814479))
sketch10.addConstraint(Sketcher.Constraint("DistanceX", -1, 1, 10, 2, 602.684889))
sketch10.addConstraint(Sketcher.Constraint("DistanceX", -1, 1, 11, 2, 606.973029))
sketch10.addConstraint(Sketcher.Constraint("DistanceY", 11, 2, -1, 1, 22.528879))
sketch10.addConstraint(Sketcher.Constraint("DistanceY", 13, 2, -1, 1, 87.26775))
sketch10.addConstraint(Sketcher.Constraint("DistanceY", 15, 2, -1, 1, 74.898871))
sketch10.addConstraint(Sketcher.Constraint("DistanceX", -1, 1, 16, 2, 93.361612))
sketch10.addConstraint(Sketcher.Constraint("DistanceX", 0, 2, 1, 2, 73.041612))
sketch10.addConstraint(Sketcher.Constraint("DistanceX", 5, 2, 3, 2, 152.094382))
sketch10.addConstraint(Sketcher.Constraint("DistanceX", 8, 2, 12, 2, 46.129589))
pocket9 = body.newObject("PartDesign::Pocket", "Pocket008")
pocket9.Profile = sketch10
pocket9.Type = "ThroughAll"
pocket9.Midplane = True

doc.recompute()
